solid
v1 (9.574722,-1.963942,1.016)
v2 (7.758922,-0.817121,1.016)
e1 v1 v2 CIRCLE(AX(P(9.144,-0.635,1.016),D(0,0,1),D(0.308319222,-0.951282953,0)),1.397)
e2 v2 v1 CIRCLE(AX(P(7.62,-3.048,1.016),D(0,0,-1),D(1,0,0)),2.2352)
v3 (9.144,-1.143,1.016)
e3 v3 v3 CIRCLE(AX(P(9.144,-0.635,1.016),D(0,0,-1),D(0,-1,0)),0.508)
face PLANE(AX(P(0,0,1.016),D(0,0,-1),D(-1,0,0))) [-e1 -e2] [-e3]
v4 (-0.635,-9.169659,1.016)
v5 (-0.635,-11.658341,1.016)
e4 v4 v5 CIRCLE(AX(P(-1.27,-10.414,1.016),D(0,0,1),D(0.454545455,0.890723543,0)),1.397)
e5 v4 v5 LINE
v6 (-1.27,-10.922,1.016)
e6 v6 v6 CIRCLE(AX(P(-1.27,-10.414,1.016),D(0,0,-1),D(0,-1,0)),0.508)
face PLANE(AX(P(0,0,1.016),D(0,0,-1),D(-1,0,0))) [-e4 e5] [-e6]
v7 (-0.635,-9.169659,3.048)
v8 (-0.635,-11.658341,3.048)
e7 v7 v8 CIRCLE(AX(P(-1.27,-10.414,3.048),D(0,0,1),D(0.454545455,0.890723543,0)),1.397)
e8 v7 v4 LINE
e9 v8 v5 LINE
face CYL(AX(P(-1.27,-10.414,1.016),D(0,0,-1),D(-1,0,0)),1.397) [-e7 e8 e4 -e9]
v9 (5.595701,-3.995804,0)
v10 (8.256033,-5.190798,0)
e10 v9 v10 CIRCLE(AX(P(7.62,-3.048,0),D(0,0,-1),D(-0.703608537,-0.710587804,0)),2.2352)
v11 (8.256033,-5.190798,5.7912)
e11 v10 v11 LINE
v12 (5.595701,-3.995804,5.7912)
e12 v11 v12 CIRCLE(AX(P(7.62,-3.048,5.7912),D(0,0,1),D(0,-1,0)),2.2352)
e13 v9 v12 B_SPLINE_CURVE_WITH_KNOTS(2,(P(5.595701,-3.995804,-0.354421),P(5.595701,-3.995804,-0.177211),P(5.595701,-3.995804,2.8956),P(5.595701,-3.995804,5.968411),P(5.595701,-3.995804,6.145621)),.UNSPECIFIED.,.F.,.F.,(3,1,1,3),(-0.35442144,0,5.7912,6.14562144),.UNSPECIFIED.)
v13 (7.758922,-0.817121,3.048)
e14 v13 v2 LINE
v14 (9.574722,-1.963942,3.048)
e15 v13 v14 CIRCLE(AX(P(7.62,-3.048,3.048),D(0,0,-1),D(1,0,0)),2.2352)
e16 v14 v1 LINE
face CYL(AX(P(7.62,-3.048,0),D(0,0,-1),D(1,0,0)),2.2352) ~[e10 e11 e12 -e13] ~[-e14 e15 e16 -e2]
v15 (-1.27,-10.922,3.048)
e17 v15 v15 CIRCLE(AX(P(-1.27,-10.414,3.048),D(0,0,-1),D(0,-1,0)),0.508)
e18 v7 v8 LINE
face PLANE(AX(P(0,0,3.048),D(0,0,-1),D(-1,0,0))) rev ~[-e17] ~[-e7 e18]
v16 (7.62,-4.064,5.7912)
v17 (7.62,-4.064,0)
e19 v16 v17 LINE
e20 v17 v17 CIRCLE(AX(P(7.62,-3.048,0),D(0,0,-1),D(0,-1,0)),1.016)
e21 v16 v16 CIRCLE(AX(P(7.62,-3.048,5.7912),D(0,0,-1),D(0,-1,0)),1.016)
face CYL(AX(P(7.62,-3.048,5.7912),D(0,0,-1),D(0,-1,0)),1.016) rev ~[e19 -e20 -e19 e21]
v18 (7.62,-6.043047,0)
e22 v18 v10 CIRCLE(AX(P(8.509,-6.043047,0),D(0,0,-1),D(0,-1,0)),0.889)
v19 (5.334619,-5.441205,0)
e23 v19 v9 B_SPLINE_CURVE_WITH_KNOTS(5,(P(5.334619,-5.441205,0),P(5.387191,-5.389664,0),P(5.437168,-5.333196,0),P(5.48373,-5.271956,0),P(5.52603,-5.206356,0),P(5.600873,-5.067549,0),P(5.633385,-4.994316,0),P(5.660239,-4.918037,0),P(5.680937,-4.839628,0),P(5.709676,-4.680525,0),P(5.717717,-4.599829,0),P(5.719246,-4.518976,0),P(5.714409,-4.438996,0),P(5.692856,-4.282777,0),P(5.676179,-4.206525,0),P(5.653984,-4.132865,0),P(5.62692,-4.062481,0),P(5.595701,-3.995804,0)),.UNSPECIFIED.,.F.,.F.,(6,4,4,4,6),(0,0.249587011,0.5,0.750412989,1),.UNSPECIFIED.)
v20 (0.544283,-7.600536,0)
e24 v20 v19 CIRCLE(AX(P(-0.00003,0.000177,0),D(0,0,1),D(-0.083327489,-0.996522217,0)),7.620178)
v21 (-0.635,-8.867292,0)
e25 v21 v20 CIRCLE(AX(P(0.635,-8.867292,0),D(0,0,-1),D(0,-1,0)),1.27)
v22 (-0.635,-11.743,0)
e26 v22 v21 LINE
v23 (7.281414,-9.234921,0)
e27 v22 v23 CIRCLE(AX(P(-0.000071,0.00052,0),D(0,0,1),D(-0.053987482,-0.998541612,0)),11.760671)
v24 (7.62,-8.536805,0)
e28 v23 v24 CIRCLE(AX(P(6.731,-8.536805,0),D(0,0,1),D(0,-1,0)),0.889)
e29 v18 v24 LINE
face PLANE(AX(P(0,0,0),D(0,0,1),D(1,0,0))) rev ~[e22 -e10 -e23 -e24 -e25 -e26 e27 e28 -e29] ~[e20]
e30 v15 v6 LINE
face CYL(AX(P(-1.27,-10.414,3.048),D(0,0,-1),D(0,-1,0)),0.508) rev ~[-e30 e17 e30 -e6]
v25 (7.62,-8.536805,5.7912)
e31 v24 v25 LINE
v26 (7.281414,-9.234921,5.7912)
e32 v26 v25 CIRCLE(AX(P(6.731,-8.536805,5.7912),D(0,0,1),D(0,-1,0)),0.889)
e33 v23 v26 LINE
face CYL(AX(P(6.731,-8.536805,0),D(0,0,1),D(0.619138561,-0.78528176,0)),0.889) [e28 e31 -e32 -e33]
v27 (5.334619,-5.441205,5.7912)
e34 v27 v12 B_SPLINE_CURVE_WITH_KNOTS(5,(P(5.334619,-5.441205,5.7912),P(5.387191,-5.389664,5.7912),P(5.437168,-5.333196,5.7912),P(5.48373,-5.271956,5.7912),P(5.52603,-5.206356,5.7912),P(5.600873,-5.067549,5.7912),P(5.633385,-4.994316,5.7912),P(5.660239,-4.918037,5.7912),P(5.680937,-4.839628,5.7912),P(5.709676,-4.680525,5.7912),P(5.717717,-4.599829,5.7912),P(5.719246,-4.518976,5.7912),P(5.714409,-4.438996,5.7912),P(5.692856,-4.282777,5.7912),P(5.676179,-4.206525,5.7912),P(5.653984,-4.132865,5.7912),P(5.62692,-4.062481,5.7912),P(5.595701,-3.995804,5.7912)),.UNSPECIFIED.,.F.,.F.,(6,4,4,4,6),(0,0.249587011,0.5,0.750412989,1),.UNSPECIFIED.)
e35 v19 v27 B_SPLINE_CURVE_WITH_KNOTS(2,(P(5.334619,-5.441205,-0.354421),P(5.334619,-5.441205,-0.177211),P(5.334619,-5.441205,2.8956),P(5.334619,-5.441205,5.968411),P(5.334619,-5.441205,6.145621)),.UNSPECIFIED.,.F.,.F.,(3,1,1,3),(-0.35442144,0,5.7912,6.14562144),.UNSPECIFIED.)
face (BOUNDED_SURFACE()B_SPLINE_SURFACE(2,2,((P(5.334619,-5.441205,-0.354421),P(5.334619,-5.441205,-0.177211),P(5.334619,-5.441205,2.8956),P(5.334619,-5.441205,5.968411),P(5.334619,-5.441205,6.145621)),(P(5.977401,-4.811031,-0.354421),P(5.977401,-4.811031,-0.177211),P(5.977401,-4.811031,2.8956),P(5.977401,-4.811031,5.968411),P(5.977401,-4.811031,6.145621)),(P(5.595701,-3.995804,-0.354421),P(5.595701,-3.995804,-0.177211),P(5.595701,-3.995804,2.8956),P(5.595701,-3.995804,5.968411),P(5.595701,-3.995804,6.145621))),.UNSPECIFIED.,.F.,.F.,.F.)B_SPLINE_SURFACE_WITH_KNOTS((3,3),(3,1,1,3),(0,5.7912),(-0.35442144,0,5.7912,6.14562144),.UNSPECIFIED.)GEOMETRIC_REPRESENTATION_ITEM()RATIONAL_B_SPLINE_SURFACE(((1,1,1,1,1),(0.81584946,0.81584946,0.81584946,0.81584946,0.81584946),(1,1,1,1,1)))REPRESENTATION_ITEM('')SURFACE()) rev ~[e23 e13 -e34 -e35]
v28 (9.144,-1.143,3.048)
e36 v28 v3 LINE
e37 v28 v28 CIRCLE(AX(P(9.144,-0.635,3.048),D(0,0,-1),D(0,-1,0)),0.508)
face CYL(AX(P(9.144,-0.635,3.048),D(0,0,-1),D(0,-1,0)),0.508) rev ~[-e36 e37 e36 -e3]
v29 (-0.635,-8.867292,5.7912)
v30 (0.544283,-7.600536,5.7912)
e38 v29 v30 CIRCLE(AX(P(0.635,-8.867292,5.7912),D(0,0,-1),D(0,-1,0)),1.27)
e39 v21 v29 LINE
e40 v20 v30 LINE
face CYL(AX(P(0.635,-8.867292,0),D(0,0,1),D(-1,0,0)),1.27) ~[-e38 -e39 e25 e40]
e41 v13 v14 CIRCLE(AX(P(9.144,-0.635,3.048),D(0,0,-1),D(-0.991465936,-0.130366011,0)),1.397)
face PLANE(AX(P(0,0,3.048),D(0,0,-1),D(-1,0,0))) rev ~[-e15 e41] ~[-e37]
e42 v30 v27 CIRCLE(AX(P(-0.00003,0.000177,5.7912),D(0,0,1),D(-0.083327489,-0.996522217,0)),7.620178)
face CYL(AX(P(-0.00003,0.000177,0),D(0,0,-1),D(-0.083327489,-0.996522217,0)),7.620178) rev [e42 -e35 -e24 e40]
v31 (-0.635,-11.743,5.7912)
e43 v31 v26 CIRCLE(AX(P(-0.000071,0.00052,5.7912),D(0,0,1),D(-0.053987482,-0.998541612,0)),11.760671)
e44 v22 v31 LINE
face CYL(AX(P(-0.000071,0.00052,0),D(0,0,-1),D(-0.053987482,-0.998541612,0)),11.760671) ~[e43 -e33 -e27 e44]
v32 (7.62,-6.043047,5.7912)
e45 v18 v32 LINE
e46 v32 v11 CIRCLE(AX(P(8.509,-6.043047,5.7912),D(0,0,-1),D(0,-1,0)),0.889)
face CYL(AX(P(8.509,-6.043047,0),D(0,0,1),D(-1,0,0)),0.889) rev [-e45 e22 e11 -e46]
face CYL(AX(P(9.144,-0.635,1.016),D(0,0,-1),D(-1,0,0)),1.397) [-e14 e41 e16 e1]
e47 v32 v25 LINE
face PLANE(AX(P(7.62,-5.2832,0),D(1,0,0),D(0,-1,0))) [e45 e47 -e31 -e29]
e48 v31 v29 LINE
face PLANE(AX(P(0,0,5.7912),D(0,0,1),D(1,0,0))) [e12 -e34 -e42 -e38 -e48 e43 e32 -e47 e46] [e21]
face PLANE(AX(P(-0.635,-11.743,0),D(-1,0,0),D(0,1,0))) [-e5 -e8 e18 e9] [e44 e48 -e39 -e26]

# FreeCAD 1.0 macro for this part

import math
import FreeCAD as App
import Part
import Sketcher
Q = App.Units.Quantity


def edges_at(feature, points):
    """Names of the edges that pass closest to the given points."""
    edges = feature.Shape.Edges
    near = lambda p: min(range(len(edges)), key=lambda i: edges[i].distToShape(Part.Vertex(*p))[0])
    return sorted({f"Edge{near(p) + 1}" for p in points})

doc = App.newDocument("Part")
body = doc.addObject("PartDesign::Body", "Body")

# Sketch on XY plane
sketch1 = body.newObject("Sketcher::SketchObject", "Sketch")
sketch1.AttachmentSupport = (doc.getObject("XY_Plane"), [""])
sketch1.MapMode = "FlatFace"
sketch1.addGeometry([
    Part.LineSegment(App.Vector(-0.6, -7.6, 0), App.Vector(-0.6, -11.7, 0)),  # 0
    Part.ArcOfCircle(Part.Circle(App.Vector(0, 0, 0), App.Vector(0, 0, 1), 11.8), math.radians(-93), math.radians(-50)),  # 1
    Part.LineSegment(App.Vector(7.6, -9, 0), App.Vector(7.6, -5.3, 0)),  # 2
    Part.ArcOfCircle(Part.Circle(App.Vector(7.6, -3, 0), App.Vector(0, 0, 1), 2.2), math.radians(-90), math.radians(225)),  # 3
    Part.ArcOfCircle(Part.Circle(App.Vector(0, 0, 0), App.Vector(0, 0, 1), 7.6), math.radians(-95), math.radians(-37)),  # 4
], False)
sketch1.addConstraint([
    Sketcher.Constraint("Coincident", 0, 2, 1, 1),
    Sketcher.Constraint("Coincident", 1, 2, 2, 1),
    Sketcher.Constraint("Coincident", 2, 2, 3, 1),
    Sketcher.Constraint("Coincident", 3, 2, 4, 2),
    Sketcher.Constraint("Coincident", 4, 1, 0, 1),
    Sketcher.Constraint("Vertical", 0),
    Sketcher.Constraint("Vertical", 2),
    Sketcher.Constraint("Coincident", 1, 3, -1, 1),
    Sketcher.Constraint("Coincident", 4, 3, -1, 1),
    Sketcher.Constraint("Vertical", 3, 3, 1, 2),
    Sketcher.Constraint("Radius", 3, Q("0.088 in")),
    Sketcher.Constraint("Radius", 4, Q("0.3 in")),
    Sketcher.Constraint("Radius", 1, Q("0.463 in")),
    Sketcher.Constraint("DistanceX", -1, 1, 3, 3, Q("0.3 in")),
    Sketcher.Constraint("DistanceY", 3, 3, -1, 1, Q("0.12 in")),
    Sketcher.Constraint("DistanceX", 0, 2, -1, 1, Q("0.025 in")),
])
pad1 = body.newObject("PartDesign::Pad", "Pad")
pad1.Profile = sketch1
pad1.Length = Q("0.228 in")
doc.recompute()

fillet = body.newObject("PartDesign::Fillet", "Fillet")
fillet.Base = (pad1, edges_at(pad1, [(7.62, -5.283, 2.896), (7.62, -8.958, 2.896)]))
fillet.Radius = Q("0.035 in")
doc.recompute()

fillet2 = body.newObject("PartDesign::Fillet", "Fillet001")
fillet2.Base = (fillet, edges_at(fillet, [(6.047, -4.636, 2.896), (-0.635, -7.593, 2.896)]))
fillet2.Radius = Q("0.05 in")

# Sketch on XY plane
sketch2 = body.newObject("Sketcher::SketchObject", "Sketch001")
sketch2.AttachmentSupport = (doc.getObject("XY_Plane"), [""])
sketch2.MapMode = "FlatFace"
sketch2.AttachmentOffset = App.Placement(App.Vector(0, 0, 0.04 * 25.4), App.Rotation())
sketch2.addGeometry([
    Part.Circle(App.Vector(-1.3, -10.4, 0), App.Vector(0, 0, 1), 1.4),
    Part.Circle(App.Vector(9.1, -0.6, 0), App.Vector(0, 0, 1), 1.4),
], False)
sketch2.addConstraint([
    Sketcher.Constraint("Equal", 0, 1),
    Sketcher.Constraint("Diameter", 0, Q("0.11 in")),
    Sketcher.Constraint("DistanceX", 0, 3, -1, 1, Q("0.05 in")),
    Sketcher.Constraint("DistanceY", 0, 3, -1, 1, Q("0.41 in")),
    Sketcher.Constraint("DistanceX", -1, 1, 1, 3, Q("0.36 in")),
    Sketcher.Constraint("DistanceY", 1, 3, -1, 1, Q("0.025 in")),
])
pad2 = body.newObject("PartDesign::Pad", "Pad001")
pad2.Profile = sketch2
pad2.Length = Q("0.08 in")

# Sketch on XY plane
sketch3 = body.newObject("Sketcher::SketchObject", "Sketch002")
sketch3.AttachmentSupport = (doc.getObject("XY_Plane"), [""])
sketch3.MapMode = "FlatFace"
sketch3.AttachmentOffset = App.Placement(App.Vector(0, 0, 0.12 * 25.4), App.Rotation())
sketch3.addGeometry(Part.Circle(App.Vector(-1.3, -10.4, 0), App.Vector(0, 0, 1), 0.5), False)
sketch3.addConstraint([
    Sketcher.Constraint("Diameter", 0, Q("0.04 in")),
    Sketcher.Constraint("DistanceX", 0, 3, -1, 1, Q("0.05 in")),
    Sketcher.Constraint("DistanceY", 0, 3, -1, 1, Q("0.41 in")),
])
doc.recompute()
hole = body.newObject("PartDesign::Hole", "Hole")
hole.Profile = sketch3
hole.ThreadType = "None"
hole.Diameter = Q("0.04 in")
hole.DepthType = "ThroughAll"

# Sketch on XY plane
sketch4 = body.newObject("Sketcher::SketchObject", "Sketch003")
sketch4.AttachmentSupport = (doc.getObject("XY_Plane"), [""])
sketch4.MapMode = "FlatFace"
sketch4.AttachmentOffset = App.Placement(App.Vector(0, 0, 0.12 * 25.4), App.Rotation())
sketch4.addGeometry(Part.Circle(App.Vector(9.1, -0.6, 0), App.Vector(0, 0, 1), 0.5), False)
sketch4.addConstraint([
    Sketcher.Constraint("Diameter", 0, Q("0.04 in")),
    Sketcher.Constraint("DistanceX", -1, 1, 0, 3, Q("0.36 in")),
    Sketcher.Constraint("DistanceY", 0, 3, -1, 1, Q("0.025 in")),
])
doc.recompute()
hole2 = body.newObject("PartDesign::Hole", "Hole001")
hole2.Profile = sketch4
hole2.ThreadType = "None"
hole2.Diameter = Q("0.04 in")
hole2.DepthType = "ThroughAll"

# Sketch on XY plane
sketch5 = body.newObject("Sketcher::SketchObject", "Sketch004")
sketch5.AttachmentSupport = (doc.getObject("XY_Plane"), [""])
sketch5.MapMode = "FlatFace"
sketch5.AttachmentOffset = App.Placement(App.Vector(0, 0, 0.228 * 25.4), App.Rotation())
sketch5.addGeometry(Part.Circle(App.Vector(7.6, -3, 0), App.Vector(0, 0, 1), 1), False)
sketch5.addConstraint([
    Sketcher.Constraint("Diameter", 0, Q("0.08 in")),
    Sketcher.Constraint("DistanceX", -1, 1, 0, 3, Q("0.3 in")),
    Sketcher.Constraint("DistanceY", 0, 3, -1, 1, Q("0.12 in")),
])
doc.recompute()
hole3 = body.newObject("PartDesign::Hole", "Hole002")
hole3.Profile = sketch5
hole3.ThreadType = "None"
hole3.Diameter = Q("0.08 in")
hole3.DepthType = "ThroughAll"

doc.recompute()
